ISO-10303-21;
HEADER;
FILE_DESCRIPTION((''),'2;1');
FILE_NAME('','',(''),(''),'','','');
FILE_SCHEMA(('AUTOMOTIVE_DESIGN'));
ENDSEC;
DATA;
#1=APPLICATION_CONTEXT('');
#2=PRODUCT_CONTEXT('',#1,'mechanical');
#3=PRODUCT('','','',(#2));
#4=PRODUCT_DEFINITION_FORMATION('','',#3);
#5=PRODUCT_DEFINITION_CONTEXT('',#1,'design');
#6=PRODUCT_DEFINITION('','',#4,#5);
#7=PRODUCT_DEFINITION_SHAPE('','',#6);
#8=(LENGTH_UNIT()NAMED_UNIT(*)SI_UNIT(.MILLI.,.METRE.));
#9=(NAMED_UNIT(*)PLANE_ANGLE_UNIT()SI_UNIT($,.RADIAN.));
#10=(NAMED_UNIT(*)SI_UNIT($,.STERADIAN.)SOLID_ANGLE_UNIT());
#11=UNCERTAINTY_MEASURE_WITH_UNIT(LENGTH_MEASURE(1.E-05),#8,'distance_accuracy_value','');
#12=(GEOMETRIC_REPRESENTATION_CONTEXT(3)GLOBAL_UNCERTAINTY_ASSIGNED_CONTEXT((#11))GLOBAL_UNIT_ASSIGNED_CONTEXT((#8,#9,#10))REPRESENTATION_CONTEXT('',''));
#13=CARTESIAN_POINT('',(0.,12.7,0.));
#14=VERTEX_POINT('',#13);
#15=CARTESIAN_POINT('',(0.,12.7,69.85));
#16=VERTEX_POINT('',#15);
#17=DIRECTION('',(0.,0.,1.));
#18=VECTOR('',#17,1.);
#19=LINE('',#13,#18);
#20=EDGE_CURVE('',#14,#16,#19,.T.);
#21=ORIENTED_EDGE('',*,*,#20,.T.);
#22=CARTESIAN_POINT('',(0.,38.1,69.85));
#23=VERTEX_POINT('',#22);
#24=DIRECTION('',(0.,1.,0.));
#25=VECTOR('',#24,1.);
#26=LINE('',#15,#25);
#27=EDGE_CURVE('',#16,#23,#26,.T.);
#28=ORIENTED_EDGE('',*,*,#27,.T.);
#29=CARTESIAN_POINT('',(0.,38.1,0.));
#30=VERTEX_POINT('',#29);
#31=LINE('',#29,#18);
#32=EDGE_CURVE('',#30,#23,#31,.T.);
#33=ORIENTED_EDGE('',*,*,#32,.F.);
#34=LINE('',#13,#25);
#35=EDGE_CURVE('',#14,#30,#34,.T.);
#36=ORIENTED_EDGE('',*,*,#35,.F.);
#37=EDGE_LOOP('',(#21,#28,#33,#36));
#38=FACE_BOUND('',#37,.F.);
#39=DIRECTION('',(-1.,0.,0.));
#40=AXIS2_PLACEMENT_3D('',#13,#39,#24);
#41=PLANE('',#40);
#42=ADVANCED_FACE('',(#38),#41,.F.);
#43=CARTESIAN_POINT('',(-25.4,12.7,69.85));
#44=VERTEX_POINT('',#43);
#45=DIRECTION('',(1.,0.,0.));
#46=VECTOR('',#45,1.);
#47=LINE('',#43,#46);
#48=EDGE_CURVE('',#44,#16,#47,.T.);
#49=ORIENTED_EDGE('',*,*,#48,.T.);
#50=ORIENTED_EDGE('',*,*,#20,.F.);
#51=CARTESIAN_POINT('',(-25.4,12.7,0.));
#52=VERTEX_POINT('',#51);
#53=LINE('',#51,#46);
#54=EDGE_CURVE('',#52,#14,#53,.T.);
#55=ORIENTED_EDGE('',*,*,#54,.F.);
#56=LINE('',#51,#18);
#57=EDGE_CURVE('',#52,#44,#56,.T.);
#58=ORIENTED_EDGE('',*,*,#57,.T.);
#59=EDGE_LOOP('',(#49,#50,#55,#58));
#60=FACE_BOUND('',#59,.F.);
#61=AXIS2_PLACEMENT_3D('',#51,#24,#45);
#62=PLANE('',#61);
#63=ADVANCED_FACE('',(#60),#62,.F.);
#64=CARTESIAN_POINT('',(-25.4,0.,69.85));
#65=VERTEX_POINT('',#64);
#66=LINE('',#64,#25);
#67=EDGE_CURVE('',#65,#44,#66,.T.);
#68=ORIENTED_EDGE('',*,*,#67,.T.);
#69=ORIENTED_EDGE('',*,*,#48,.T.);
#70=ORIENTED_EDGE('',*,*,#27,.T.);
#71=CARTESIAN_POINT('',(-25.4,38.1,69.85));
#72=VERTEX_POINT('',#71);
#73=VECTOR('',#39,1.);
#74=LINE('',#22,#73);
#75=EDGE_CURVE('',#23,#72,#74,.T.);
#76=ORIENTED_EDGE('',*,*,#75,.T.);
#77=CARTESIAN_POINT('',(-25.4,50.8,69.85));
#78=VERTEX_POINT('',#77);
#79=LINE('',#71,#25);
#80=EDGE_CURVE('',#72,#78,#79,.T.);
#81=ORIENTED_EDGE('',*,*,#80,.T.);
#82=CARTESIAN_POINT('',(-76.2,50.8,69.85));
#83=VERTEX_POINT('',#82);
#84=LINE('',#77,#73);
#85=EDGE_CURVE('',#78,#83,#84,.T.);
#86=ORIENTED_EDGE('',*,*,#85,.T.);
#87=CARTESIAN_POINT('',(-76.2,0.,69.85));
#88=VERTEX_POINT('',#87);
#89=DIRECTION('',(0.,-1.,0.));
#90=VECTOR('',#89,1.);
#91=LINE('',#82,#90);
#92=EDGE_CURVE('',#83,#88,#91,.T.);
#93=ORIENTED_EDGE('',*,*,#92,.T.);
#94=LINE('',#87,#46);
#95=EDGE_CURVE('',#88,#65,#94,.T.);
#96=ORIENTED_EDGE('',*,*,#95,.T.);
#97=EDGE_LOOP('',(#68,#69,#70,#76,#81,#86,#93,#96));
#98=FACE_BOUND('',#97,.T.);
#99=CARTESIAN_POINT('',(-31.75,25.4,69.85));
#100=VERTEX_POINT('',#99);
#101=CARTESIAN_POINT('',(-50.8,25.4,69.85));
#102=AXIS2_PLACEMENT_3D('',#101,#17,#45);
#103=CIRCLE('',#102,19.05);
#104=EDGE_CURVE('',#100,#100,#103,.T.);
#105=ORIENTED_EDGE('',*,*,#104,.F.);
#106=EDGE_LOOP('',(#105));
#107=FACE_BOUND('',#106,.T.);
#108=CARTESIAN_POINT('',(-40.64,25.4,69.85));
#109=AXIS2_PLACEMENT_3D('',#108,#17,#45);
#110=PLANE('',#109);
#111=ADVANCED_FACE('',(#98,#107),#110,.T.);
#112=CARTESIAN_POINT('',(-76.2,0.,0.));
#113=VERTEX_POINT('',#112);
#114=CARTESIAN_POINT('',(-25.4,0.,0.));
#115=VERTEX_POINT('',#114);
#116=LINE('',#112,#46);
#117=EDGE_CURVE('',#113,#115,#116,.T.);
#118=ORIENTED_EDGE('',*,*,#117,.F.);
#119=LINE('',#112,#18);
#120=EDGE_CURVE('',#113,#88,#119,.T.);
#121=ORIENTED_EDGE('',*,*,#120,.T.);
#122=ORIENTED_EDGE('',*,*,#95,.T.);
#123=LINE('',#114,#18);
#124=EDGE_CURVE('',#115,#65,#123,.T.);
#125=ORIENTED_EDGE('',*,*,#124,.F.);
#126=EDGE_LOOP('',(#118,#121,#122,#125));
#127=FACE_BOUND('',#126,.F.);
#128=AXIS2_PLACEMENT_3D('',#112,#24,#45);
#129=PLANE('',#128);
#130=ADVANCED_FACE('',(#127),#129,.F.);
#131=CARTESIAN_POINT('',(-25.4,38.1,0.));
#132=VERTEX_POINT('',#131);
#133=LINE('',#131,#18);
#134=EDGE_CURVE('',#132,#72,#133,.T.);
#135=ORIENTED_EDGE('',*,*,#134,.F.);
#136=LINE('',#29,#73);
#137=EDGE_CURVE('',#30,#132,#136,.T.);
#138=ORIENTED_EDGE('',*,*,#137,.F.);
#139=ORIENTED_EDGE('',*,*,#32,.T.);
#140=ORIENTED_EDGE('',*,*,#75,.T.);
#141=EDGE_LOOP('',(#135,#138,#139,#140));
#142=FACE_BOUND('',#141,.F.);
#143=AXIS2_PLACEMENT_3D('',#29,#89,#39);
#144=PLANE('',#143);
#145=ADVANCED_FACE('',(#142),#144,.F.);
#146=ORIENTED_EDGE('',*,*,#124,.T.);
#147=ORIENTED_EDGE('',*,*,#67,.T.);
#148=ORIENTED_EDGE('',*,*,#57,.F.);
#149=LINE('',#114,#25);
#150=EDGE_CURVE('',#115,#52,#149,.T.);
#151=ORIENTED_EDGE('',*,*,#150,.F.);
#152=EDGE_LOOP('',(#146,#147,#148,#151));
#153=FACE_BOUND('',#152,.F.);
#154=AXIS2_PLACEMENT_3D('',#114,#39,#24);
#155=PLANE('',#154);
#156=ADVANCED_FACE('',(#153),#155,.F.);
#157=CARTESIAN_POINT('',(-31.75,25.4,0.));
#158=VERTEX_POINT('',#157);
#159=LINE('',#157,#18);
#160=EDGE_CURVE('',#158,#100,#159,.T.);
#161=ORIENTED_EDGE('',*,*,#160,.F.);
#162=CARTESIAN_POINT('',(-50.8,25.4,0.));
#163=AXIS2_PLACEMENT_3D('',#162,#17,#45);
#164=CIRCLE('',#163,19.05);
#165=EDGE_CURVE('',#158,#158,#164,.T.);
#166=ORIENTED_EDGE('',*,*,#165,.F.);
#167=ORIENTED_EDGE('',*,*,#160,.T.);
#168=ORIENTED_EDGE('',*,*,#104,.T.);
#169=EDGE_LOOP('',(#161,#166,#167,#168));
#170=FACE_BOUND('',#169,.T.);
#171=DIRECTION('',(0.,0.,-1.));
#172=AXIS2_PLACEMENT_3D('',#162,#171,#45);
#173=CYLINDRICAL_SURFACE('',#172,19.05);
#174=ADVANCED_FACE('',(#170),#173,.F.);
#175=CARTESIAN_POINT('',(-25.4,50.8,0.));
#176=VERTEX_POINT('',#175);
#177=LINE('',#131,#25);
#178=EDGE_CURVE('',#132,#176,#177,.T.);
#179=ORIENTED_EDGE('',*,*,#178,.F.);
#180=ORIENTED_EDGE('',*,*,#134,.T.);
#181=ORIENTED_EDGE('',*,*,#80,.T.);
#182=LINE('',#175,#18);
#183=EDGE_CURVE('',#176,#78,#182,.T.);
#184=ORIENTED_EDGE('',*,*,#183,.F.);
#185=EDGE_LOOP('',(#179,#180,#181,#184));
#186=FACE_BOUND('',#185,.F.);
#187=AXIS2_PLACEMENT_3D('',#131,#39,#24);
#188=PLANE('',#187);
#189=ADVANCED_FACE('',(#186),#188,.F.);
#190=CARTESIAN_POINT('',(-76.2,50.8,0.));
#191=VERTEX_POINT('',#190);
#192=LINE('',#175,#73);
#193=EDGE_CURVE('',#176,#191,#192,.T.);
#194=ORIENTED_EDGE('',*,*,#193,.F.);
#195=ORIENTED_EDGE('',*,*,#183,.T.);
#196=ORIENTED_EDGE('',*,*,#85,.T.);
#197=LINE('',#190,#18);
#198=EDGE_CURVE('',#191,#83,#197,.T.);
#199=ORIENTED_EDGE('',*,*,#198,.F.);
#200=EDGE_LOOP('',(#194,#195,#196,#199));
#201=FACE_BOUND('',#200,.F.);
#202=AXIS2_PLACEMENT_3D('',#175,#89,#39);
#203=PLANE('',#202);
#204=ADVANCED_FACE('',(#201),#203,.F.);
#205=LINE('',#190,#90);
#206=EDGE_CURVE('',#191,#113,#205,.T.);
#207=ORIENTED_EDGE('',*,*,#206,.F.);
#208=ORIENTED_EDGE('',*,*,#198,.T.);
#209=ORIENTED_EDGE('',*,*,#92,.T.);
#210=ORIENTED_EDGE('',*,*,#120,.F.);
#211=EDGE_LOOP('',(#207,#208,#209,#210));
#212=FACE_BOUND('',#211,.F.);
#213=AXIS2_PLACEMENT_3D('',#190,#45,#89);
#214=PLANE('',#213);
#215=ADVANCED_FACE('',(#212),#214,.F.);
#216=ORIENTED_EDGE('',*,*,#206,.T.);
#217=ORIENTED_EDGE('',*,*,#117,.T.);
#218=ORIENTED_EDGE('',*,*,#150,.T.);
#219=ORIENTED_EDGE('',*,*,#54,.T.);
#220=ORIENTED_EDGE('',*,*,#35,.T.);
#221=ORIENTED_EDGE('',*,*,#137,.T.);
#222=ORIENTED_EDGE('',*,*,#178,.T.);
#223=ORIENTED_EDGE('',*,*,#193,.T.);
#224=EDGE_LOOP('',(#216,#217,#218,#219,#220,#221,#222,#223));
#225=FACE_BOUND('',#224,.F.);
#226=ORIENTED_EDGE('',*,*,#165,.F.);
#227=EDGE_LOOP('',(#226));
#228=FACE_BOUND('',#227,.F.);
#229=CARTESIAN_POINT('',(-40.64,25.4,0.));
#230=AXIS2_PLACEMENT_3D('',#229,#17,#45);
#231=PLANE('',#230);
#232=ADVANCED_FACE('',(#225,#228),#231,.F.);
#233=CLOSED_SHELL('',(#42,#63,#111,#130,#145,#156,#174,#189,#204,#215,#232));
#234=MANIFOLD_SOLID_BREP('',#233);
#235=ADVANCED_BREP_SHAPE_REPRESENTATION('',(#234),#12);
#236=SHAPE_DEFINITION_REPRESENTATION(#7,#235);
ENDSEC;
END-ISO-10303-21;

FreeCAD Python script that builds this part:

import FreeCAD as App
import Part
import Sketcher

V = App.Vector
Q = App.Units.Quantity


def add_polygon(sketch, points):
    """Adds a closed chain of lines whose ends are joined by coincident constraints."""
    first, n = sketch.GeometryCount, len(points)
    for a, b in zip(points, points[1:] + points[:1]):
        sketch.addGeometry(Part.LineSegment(App.Vector(*a, 0), App.Vector(*b, 0)), False)
    for i in range(n):
        sketch.addConstraint(Sketcher.Constraint("Coincident", first + i, 2, first + (i + 1) % n, 1))

doc = App.newDocument("Part")
params = doc.addObject("Spreadsheet::Sheet", "Params")
for row, (alias, value) in enumerate([
    ("sketch1_diameter", "1.5 in"),
    ("sketch1_width", "2 in"),
    ("sketch1_width2", "1 in"),
    ("pad1_length", "2.75 in"),
], start=1):
    params.set(f"A{row}", alias)
    params.set(f"B{row}", "=" + value)
    params.setAlias(f"B{row}", alias)

body = doc.addObject("PartDesign::Body", "Body")

# Sketch on XY plane
sketch1 = doc.addObject("Sketcher::SketchObject", "Sketch")
body.addObject(sketch1)
sketch1.AttachmentSupport = (doc.XY_Plane, [""])
sketch1.MapMode = "FlatFace"
add_polygon(sketch1, [(-76.2, 0), (-25.4, 0), (-25.4, 12.7), (0, 12.7), (0, 38.1), (-25.4, 38.1), (-25.4, 50.8), (-76.2, 50.8)])  # lines 0-7
sketch1.addGeometry(Part.Circle(V(-50.8, 25.4, 0), V(0, 0, 1), 19.05), False)  # 8
sketch1.addConstraint([
    Sketcher.Constraint("Horizontal", 0),
    Sketcher.Constraint("Vertical", 1),
    Sketcher.Constraint("Horizontal", 2),
    Sketcher.Constraint("Vertical", 3),
    Sketcher.Constraint("Horizontal", 4),
    Sketcher.Constraint("Vertical", 5),
    Sketcher.Constraint("Horizontal", 6),
    Sketcher.Constraint("Vertical", 7),
    Sketcher.Constraint("PointOnObject", 0, 2, -1),
    Sketcher.Constraint("PointOnObject", 2, 2, -2),
    Sketcher.Constraint("Vertical", 1, 2, 4, 2),
    Sketcher.Constraint("Equal", 4, 3),
    Sketcher.Constraint("Equal", 1, 5),
    Sketcher.Constraint("Equal", 6, 7),
    Sketcher.Constraint("Diameter", 8, Q("1.5 in")),
    Sketcher.Constraint("DistanceX", 0, 1, 0, 2, Q("2 in")),
    Sketcher.Constraint("DistanceX", 2, 1, 2, 2, Q("1 in")),
    Sketcher.Constraint("DistanceX", 8, 3, -1, 1, Q("2 in")),
    Sketcher.Constraint("DistanceY", -1, 1, 8, 3, Q("1 in")),
])
sketch1.setExpression("Constraints[22]", "Params.sketch1_diameter")
sketch1.setExpression("Constraints[23]", "Params.sketch1_width")
sketch1.setExpression("Constraints[24]", "Params.sketch1_width2")
pad1 = doc.addObject("PartDesign::Pad", "Pad")
body.addObject(pad1)
pad1.Profile = sketch1
pad1.setExpression("Length", "Params.pad1_length")

doc.recompute()
